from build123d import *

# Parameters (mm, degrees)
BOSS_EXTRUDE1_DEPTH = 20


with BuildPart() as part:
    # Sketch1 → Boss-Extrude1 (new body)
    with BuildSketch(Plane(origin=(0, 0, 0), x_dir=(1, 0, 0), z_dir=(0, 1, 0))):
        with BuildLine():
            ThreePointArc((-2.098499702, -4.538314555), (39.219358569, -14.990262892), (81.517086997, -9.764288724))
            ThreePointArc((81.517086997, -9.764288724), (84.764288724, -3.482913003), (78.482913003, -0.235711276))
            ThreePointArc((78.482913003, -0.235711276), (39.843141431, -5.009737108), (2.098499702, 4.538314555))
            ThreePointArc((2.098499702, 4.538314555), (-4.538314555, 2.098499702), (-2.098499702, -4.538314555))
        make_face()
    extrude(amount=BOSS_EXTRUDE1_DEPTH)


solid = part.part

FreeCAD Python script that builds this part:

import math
import FreeCAD as App
import Part
import Sketcher

V = App.Vector

doc = App.newDocument("Part")
params = doc.addObject("Spreadsheet::Sheet", "Params")
for row, (alias, value) in enumerate([
    ("sketch1_radius", "5 mm"),
    ("pad1_length", "20 mm"),
], start=1):
    params.set(f"A{row}", alias)
    params.set(f"B{row}", "=" + value)
    params.setAlias(f"B{row}", alias)

body = doc.addObject("PartDesign::Body", "Body")

# Sketch on XZ plane
sketch1 = doc.addObject("Sketcher::SketchObject", "Sketch")
body.addObject(sketch1)
sketch1.AttachmentSupport = (doc.XZ_Plane, [""])
sketch1.MapMode = "FlatFace"
sketch1.addGeometry([
    Part.ArcOfCircle(Part.Circle(V(46, -100, 0), V(0, 0, 1), 116), math.radians(72), math.radians(115)),
    Part.ArcOfCircle(Part.Circle(V(80, 5, 0), V(0, 0, 1), 5), math.radians(-108), math.radians(72)),
    Part.ArcOfCircle(Part.Circle(V(46, -100, 0), V(0, 0, 1), 106), math.radians(72), math.radians(115)),
    Part.ArcOfCircle(Part.Circle(V(0, 0, 0), V(0, 0, 1), 5), math.radians(115), math.radians(295)),
], False)
sketch1.addConstraint([
    Sketcher.Constraint("Tangent", 0, 1, 1, 2),
    Sketcher.Constraint("Tangent", 1, 1, 2, 1),
    Sketcher.Constraint("Tangent", 2, 2, 3, 2),
    Sketcher.Constraint("Tangent", 3, 1, 0, 2),
    Sketcher.Constraint("Coincident", 3, 3, -1, 1),
    Sketcher.Constraint("Coincident", 2, 3, 0, 3),
    Sketcher.Constraint("Radius", 1, 5.0),
    Sketcher.Constraint("DistanceX", -1, 1, 1, 3, 80.0),
    Sketcher.Constraint("DistanceY", -1, 1, 1, 3, 5.0),
    Sketcher.Constraint("Radius", 0, 115.632114),
])
sketch1.setExpression("Constraints[6]", "Params.sketch1_radius")
pad1 = doc.addObject("PartDesign::Pad", "Pad")
body.addObject(pad1)
pad1.Profile = sketch1
pad1.setExpression("Length", "Params.pad1_length")
pad1.Reversed = True

doc.recompute()
